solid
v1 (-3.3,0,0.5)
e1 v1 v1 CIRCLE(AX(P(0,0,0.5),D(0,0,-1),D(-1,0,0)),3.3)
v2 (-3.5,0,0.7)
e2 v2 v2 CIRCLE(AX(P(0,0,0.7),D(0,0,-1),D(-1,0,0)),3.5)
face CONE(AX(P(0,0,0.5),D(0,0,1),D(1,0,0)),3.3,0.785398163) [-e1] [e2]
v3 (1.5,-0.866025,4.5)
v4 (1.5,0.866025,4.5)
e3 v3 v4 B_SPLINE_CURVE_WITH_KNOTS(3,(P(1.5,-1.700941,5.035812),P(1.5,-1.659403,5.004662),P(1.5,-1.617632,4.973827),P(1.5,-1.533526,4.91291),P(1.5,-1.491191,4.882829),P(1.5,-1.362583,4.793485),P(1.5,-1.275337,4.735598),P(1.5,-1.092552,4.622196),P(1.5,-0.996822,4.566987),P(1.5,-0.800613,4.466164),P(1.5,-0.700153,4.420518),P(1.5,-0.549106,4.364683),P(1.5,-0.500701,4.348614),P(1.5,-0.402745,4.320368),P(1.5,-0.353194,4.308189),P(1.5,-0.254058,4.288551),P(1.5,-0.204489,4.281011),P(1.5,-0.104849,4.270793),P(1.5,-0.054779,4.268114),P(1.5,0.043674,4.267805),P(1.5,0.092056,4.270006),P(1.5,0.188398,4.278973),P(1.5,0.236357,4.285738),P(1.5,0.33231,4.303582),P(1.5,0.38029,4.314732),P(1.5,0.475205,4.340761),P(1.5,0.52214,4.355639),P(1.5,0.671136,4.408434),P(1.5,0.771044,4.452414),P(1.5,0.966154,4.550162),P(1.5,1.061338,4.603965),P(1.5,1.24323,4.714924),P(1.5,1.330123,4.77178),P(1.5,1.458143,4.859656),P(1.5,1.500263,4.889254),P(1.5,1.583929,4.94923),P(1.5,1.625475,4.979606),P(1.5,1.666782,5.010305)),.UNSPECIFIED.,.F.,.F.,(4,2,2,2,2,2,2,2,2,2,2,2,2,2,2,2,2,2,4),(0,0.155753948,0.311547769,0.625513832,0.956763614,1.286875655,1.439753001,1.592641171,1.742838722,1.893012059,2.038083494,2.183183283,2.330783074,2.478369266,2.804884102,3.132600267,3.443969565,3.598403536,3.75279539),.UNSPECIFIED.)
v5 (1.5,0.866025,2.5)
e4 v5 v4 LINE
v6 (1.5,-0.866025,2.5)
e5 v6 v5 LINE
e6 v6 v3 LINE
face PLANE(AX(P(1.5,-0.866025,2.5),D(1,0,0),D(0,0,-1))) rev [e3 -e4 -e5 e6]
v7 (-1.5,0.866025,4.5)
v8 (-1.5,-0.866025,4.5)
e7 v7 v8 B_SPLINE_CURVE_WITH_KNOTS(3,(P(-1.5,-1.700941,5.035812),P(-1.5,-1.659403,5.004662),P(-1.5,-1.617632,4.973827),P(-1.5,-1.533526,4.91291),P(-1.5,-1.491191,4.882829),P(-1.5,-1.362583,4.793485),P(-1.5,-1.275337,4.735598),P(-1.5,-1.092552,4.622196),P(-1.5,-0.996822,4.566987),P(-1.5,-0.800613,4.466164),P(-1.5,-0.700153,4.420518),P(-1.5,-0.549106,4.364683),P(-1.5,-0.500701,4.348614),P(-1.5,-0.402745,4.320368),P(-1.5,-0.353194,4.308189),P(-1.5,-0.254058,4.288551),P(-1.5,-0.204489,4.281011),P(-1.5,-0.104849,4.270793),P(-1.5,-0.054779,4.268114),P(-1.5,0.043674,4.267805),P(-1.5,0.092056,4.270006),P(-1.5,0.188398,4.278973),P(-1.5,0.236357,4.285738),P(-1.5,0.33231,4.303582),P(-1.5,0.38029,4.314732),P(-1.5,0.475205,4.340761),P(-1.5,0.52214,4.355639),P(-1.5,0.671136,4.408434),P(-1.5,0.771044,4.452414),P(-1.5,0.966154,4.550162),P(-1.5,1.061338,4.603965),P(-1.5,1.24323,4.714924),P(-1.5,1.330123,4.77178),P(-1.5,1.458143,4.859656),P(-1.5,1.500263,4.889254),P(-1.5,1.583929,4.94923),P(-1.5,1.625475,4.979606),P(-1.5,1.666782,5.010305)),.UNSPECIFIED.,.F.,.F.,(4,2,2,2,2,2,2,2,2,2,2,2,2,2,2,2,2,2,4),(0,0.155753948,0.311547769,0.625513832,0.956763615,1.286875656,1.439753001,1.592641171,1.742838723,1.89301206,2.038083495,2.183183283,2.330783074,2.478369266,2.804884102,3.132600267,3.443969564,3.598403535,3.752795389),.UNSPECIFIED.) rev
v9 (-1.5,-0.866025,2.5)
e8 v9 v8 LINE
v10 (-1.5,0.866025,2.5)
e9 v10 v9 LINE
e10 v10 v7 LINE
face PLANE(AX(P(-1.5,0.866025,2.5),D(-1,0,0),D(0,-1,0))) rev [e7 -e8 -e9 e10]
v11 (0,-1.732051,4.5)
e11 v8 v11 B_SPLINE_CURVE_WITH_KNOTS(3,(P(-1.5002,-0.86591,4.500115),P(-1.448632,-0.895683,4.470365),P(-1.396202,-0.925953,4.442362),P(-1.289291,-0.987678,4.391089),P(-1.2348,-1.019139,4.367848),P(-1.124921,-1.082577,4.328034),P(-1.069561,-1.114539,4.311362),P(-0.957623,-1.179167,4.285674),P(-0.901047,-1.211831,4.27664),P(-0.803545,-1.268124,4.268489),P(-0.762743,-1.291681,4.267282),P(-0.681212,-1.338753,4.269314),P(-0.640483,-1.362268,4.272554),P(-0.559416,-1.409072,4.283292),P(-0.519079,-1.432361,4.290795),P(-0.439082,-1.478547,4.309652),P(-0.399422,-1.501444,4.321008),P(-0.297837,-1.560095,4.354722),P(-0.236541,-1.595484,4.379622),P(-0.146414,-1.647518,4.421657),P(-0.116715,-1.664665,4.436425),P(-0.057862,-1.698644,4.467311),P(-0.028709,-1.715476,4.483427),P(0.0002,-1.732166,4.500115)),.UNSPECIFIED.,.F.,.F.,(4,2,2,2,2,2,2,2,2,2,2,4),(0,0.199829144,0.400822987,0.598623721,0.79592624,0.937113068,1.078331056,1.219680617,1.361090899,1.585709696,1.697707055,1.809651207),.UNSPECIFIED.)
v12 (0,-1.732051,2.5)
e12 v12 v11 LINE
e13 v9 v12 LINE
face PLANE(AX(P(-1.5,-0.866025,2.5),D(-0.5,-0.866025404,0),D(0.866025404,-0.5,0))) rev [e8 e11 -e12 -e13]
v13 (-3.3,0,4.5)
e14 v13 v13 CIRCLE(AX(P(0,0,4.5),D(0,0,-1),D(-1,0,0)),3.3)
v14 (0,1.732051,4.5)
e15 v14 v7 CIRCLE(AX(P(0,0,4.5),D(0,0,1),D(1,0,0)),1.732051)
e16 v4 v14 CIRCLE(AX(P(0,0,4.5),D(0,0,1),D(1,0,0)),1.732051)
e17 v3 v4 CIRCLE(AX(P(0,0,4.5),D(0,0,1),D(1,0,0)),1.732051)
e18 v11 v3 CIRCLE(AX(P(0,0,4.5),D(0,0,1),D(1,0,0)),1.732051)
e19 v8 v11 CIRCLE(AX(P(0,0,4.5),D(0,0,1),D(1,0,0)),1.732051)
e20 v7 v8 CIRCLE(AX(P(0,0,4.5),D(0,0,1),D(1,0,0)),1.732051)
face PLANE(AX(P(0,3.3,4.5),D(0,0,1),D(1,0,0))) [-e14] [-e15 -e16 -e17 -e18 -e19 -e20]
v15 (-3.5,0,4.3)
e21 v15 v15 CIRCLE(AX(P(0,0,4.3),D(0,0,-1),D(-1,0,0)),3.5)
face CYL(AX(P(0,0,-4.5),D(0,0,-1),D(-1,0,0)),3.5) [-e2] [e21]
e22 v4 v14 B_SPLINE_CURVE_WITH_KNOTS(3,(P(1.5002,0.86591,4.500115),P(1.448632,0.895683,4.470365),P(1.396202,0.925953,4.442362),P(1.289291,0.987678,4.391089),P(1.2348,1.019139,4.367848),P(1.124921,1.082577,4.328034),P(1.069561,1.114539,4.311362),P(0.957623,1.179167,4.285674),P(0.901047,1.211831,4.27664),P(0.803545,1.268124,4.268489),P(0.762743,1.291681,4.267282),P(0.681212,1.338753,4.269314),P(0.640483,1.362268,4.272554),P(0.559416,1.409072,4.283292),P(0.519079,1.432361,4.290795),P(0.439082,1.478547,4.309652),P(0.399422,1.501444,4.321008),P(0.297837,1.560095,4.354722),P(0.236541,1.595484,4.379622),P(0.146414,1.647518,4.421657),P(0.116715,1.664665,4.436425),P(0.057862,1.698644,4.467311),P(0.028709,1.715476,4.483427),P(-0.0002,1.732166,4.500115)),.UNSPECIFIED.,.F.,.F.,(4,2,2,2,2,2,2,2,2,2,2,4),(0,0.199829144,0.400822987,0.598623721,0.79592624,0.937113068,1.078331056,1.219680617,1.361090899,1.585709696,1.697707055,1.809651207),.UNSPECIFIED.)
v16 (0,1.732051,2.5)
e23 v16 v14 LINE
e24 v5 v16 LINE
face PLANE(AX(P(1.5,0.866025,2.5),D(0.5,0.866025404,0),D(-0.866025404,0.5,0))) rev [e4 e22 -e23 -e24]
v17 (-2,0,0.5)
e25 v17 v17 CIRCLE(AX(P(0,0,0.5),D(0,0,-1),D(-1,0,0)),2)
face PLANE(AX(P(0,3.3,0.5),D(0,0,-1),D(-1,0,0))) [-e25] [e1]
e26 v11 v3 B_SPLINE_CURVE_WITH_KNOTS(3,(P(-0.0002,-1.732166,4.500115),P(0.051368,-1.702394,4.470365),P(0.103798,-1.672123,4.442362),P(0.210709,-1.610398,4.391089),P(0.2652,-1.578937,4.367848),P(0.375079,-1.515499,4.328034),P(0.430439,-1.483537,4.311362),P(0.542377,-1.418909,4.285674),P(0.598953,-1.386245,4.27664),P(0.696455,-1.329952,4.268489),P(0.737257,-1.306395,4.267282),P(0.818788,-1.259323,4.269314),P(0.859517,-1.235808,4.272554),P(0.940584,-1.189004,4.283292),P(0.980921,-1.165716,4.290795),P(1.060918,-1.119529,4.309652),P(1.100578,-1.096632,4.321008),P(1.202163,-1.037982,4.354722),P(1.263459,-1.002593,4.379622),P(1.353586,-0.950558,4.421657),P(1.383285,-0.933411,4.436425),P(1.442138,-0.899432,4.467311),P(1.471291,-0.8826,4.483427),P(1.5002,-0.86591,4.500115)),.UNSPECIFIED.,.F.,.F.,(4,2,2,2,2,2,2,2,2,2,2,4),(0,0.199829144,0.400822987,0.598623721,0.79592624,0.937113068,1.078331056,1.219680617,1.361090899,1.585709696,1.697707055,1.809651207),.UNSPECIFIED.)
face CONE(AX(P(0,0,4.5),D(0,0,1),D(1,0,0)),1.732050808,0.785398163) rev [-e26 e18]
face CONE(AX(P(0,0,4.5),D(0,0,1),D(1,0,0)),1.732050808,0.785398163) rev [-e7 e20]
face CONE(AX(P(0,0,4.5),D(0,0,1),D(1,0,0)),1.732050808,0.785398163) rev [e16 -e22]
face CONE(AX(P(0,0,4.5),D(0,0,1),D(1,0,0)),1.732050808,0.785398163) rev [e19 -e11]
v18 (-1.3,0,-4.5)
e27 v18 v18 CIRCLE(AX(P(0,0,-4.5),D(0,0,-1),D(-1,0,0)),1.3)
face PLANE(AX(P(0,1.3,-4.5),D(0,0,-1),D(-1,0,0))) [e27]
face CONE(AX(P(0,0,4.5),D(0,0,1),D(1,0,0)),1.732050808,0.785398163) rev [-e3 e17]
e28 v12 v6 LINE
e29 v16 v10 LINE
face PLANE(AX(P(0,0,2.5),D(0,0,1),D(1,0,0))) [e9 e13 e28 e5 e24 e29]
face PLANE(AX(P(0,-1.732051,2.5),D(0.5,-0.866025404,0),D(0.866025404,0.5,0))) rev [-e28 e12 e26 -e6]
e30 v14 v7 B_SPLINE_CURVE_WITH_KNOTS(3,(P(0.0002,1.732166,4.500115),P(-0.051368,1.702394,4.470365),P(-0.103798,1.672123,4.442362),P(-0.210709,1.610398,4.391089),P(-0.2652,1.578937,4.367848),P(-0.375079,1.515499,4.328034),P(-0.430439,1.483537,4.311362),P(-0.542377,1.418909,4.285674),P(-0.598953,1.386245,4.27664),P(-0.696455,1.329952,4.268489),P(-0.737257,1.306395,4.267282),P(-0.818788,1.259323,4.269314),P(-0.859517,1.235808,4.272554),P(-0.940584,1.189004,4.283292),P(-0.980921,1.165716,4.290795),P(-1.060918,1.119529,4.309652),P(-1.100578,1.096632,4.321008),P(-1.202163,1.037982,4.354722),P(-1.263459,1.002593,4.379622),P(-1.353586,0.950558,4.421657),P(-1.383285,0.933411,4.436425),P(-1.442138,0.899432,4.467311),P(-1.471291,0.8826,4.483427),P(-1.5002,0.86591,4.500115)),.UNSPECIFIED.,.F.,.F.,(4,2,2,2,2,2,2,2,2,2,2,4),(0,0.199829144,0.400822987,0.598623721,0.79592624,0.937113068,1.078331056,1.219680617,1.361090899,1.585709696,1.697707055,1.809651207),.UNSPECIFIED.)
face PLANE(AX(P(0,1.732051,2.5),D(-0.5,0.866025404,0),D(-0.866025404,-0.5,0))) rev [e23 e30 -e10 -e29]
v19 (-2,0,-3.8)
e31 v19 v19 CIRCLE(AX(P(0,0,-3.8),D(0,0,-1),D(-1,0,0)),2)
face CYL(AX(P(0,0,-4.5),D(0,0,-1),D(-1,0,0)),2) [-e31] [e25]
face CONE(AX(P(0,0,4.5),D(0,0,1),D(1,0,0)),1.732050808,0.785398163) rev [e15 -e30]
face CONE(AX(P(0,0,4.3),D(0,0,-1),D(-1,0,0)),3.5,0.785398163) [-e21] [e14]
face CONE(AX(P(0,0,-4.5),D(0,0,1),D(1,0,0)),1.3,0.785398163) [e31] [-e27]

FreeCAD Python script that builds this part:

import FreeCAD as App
import Part
import Sketcher
from FreeCAD import Vector
Q = App.Units.Quantity


def add_polygon(sketch, points):
    """Adds a closed chain of lines whose ends are joined by coincident constraints."""
    first, n = sketch.GeometryCount, len(points)
    for a, b in zip(points, points[1:] + points[:1]):
        sketch.addGeometry(Part.LineSegment(App.Vector(*a, 0), App.Vector(*b, 0)), False)
    for i in range(n):
        sketch.addConstraint(Sketcher.Constraint("Coincident", first + i, 2, first + (i + 1) % n, 1))

doc = App.newDocument("Part")
body = doc.addObject("PartDesign::Body", "Body")

sketch1 = body.newObject("Sketcher::SketchObject", "Sketch")
sketch1.AttachmentSupport = (doc.getObject("YZ_Plane"), [""])
sketch1.MapMode = "FlatFace"
add_polygon(sketch1, [(3.5, 0.7), (3.5, 4.3), (3.3, 4.5), (0, 4.5), (0, -4.5), (1.3, -4.5), (2, -3.8), (2, 0.5), (3.3, 0.5)])
sketch1.addConstraint([
    Sketcher.Constraint("Vertical", 0),
    Sketcher.Constraint("Horizontal", 2),
    Sketcher.Constraint("Vertical", 3),
    Sketcher.Constraint("Horizontal", 4),
    Sketcher.Constraint("Vertical", 6),
    Sketcher.Constraint("Horizontal", 7),
    Sketcher.Constraint("Symmetric", 2, 2, 3, 2, -1, 1),
    Sketcher.Constraint("Perpendicular", 1, 5),
    Sketcher.Constraint("Parallel", 5, 8),
    Sketcher.Constraint("Vertical", 1, 2, 7, 2),
    Sketcher.Constraint("Equal", 4, 7),
    Sketcher.Constraint("Equal", 1, 8),
    Sketcher.Constraint("DistanceY", 3, 2, 3, 1, 9.0),
    Sketcher.Constraint("DistanceX", 2, 2, 2, 1, 3.3),
    Sketcher.Constraint("DistanceX", 4, 1, 4, 2, 1.3),
    Sketcher.Constraint("DistanceY", 0, 1, 0, 2, 3.6),
    Sketcher.Constraint("DistanceY", 6, 1, 6, 2, 4.3),
])
revolution = body.newObject("PartDesign::Revolution", "Revolution")
revolution.Profile = sketch1
revolution.ReferenceAxis = (sketch1, ["V_Axis"])
revolution.Angle = 360

sketch2 = body.newObject("Sketcher::SketchObject", "Sketch001")
sketch2.AttachmentSupport = (doc.getObject("XY_Plane"), [""])
sketch2.MapMode = "FlatFace"
sketch2.AttachmentOffset = App.Placement(Vector(0, 0, 2.5), App.Rotation())
add_polygon(sketch2, [(0, 1.7), (-1.5, 0.9), (-1.5, -0.9), (0, -1.7), (1.5, -0.9), (1.5, 0.9)])
sketch2.addConstraint([
    Sketcher.Constraint("Vertical", 1),
    Sketcher.Constraint("Vertical", 4),
    Sketcher.Constraint("Symmetric", 0, 2, 3, 2, -1, 1),
    Sketcher.Constraint("Symmetric", 2, 2, 5, 2, -1, 1),
    Sketcher.Constraint("PointOnObject", 2, 2, -2),
    Sketcher.Constraint("Parallel", 2, 5),
    Sketcher.Constraint("Horizontal", 1, 2, 3, 2),
    Sketcher.Constraint("Angle", 0, Q("-150 deg")),
    Sketcher.Constraint("DistanceX", 1, 2, 3, 2, 3.0),
    Sketcher.Constraint("DistanceY", 1, 2, 1, 1, 1.732051),
])
pocket1 = body.newObject("PartDesign::Pocket", "Pocket")
pocket1.Profile = sketch2
pocket1.Length = 2
pocket1.Reversed = True

sketch3 = body.newObject("Sketcher::SketchObject", "Sketch002")
sketch3.AttachmentSupport = (doc.getObject("XY_Plane"), [""])
sketch3.MapMode = "FlatFace"
sketch3.AttachmentOffset = App.Placement(Vector(0, 0, 4.5), App.Rotation())
sketch3.addGeometry(Part.Circle(Vector(0, 0, 0), Vector(0, 0, 1), 1.7), False)
sketch3.addConstraint([
    Sketcher.Constraint("Coincident", 0, 3, -1, 1),
    Sketcher.Constraint("Diameter", 0, 3.464102),
])
pocket2 = body.newObject("PartDesign::Pocket", "Pocket001")
pocket2.Profile = sketch3
pocket2.Length = 0.5
pocket2.TaperAngle = -45

doc.recompute()
